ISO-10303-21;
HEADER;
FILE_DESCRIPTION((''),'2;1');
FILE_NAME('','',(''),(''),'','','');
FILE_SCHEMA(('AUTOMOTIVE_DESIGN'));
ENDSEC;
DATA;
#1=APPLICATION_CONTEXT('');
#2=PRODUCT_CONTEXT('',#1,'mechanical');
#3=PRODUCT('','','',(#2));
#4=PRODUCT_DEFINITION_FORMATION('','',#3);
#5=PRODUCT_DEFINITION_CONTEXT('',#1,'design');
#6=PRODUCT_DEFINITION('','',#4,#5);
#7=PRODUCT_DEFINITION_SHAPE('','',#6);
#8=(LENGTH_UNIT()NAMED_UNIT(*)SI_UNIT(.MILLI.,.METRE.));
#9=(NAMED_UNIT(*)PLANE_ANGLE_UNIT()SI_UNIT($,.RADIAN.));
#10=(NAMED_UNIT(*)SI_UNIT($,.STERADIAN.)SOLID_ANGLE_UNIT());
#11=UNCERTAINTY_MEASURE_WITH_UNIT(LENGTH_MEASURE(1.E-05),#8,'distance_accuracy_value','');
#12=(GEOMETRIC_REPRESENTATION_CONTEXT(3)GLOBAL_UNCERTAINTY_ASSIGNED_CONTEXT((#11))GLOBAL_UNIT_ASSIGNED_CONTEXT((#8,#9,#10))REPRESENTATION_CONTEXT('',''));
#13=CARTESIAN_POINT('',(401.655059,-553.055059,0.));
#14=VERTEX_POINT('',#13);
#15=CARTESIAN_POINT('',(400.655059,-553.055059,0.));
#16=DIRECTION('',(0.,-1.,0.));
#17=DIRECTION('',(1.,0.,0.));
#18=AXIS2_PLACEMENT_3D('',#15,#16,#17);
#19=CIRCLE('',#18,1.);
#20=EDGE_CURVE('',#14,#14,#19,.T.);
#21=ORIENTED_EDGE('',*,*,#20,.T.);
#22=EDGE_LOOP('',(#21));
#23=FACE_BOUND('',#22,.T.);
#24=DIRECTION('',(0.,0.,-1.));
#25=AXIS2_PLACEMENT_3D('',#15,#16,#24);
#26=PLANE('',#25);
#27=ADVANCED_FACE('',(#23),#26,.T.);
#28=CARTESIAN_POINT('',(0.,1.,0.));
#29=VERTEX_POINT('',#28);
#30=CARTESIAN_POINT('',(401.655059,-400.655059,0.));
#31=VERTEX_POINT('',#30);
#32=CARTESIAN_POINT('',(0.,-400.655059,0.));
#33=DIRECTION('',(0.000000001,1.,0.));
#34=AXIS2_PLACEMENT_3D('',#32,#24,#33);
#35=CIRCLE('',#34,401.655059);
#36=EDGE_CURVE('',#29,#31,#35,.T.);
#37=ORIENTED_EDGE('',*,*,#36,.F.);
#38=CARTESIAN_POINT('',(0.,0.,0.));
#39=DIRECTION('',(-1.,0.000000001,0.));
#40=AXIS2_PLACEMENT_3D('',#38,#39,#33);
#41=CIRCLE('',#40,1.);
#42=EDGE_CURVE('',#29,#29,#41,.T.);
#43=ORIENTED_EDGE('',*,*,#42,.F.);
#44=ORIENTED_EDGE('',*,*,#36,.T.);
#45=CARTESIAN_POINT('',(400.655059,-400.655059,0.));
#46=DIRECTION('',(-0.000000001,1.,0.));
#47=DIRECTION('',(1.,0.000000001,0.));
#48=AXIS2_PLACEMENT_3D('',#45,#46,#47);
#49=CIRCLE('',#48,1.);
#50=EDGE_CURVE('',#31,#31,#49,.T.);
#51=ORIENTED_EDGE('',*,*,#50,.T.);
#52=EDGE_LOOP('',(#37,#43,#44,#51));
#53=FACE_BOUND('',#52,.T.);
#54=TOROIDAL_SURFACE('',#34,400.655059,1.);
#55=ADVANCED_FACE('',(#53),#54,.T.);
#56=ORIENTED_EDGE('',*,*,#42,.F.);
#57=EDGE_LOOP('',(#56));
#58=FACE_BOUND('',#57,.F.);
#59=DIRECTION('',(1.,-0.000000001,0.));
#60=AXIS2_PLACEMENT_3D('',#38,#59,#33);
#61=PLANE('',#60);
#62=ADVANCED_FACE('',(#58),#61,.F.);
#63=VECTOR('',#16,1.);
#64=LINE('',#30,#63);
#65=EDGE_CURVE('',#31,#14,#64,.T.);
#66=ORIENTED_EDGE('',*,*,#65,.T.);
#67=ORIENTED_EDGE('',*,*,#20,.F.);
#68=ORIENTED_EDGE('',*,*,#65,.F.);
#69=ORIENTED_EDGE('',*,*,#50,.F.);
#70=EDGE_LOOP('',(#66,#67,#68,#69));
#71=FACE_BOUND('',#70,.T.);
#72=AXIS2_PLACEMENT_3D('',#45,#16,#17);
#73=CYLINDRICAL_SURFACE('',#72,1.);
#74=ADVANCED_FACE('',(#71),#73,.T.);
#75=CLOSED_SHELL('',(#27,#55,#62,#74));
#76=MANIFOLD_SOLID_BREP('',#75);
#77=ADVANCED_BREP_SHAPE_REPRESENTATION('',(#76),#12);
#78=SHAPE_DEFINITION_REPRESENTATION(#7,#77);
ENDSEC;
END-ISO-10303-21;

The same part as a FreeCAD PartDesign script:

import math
import FreeCAD as App
import Part
import Sketcher
from FreeCAD import Vector

doc = App.newDocument("Part")
body = doc.addObject("PartDesign::Body", "Body")

sketch1 = doc.addObject("Sketcher::SketchObject", "Sketch")
body.addObject(sketch1)
sketch1.AttachmentSupport = (doc.YZ_Plane, [""])
sketch1.MapMode = "FlatFace"
sketch1.addGeometry(Part.Circle(Vector(0, 0, 0), Vector(0, 0, 1), 1), False)
sketch1.addConstraint(Sketcher.Constraint("Coincident", 0, 3, -1, 1))
sketch1.addConstraint(Sketcher.Constraint("Diameter", 0, 2.0))

sketch2 = doc.addObject("Sketcher::SketchObject", "Sketch001")
body.addObject(sketch2)
sketch2.AttachmentSupport = (doc.XY_Plane, [""])
sketch2.MapMode = "FlatFace"
sketch2.addGeometry(Part.ArcOfCircle(Part.Circle(Vector(0, -401, 0), Vector(0, 0, 1), 401), math.radians(0), math.radians(90)), False)
sketch2.addGeometry(Part.LineSegment(Vector(401, -401, 0), Vector(401, -553, 0)), False)
sketch2.addConstraint(Sketcher.Constraint("Tangent", 0, 1, 1, 1))
sketch2.addConstraint(Sketcher.Constraint("Vertical", 1))
sketch2.addConstraint(Sketcher.Constraint("Coincident", 0, 2, -1, 1))
sketch2.addConstraint(Sketcher.Constraint("PointOnObject", 0, 3, -2))
sketch2.addConstraint(Sketcher.Constraint("DistanceY", 1, 2, 1, 1, 152.4))
sketch2.addConstraint(Sketcher.Constraint("Radius", 0, 400.655059))
doc.recompute()

additivepipe = doc.addObject("PartDesign::AdditivePipe", "AdditivePipe")
body.addObject(additivepipe)
additivepipe.Profile = sketch1
additivepipe.Spine = (sketch2, ["Edge1", "Edge2"])

doc.recompute()
